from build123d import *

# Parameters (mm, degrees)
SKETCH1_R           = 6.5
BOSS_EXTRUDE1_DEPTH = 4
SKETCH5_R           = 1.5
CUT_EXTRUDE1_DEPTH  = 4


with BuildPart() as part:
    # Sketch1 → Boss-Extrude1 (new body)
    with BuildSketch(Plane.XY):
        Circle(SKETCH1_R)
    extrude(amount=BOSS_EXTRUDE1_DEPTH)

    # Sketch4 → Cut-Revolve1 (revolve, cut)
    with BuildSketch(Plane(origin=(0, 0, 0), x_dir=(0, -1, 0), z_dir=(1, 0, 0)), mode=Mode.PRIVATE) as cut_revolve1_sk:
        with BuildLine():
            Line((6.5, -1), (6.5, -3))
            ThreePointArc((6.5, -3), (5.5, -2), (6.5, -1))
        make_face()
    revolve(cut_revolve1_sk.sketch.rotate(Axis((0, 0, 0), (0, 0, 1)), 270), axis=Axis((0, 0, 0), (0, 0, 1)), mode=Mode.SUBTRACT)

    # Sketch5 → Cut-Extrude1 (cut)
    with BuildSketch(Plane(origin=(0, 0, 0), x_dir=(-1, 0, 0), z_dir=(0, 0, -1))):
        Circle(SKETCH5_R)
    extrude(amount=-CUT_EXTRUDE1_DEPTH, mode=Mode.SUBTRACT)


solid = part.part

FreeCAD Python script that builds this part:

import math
import FreeCAD as App
import Part
import Sketcher

V = App.Vector
Q = App.Units.Quantity

doc = App.newDocument("Part")
body = doc.addObject("PartDesign::Body", "Body")

# Sketch on XY plane
sketch1 = body.newObject("Sketcher::SketchObject", "Sketch")
sketch1.AttachmentSupport = (doc.getObject("XY_Plane"), [""])
sketch1.MapMode = "FlatFace"
sketch1.addGeometry(Part.Circle(V(0, 0, 0), V(0, 0, 1), 6.5), False)
sketch1.addConstraint(Sketcher.Constraint("Coincident", 0, 3, -1, 1))
sketch1.addConstraint(Sketcher.Constraint("Diameter", 0, Q("13 mm")))
pad1 = body.newObject("PartDesign::Pad", "Pad")
pad1.Profile = sketch1
pad1.Length = 4

# Sketch on YZ plane
sketch2 = body.newObject("Sketcher::SketchObject", "Sketch001")
sketch2.AttachmentSupport = (doc.getObject("YZ_Plane"), [""])
sketch2.MapMode = "FlatFace"
sketch2.addGeometry(Part.LineSegment(V(-6.5, 3, 0), V(-6.5, 1, 0)), False)
sketch2.addGeometry(Part.ArcOfCircle(Part.Circle(V(-6.5, 2, 0), V(0, 0, 1), 1), math.radians(-90), math.radians(90)), False)
sketch2.addConstraint(Sketcher.Constraint("Coincident", 0, 1, 1, 2))
sketch2.addConstraint(Sketcher.Constraint("Coincident", 1, 1, 0, 2))
sketch2.addConstraint(Sketcher.Constraint("Vertical", 0))
sketch2.addConstraint(Sketcher.Constraint("Vertical", 1, 3, 0, 1))
sketch2.addConstraint(Sketcher.Constraint("Radius", 1, Q("1 mm")))
sketch2.addConstraint(Sketcher.Constraint("DistanceY", -1, 1, 1, 3, Q("2 mm")))
sketch2.addConstraint(Sketcher.Constraint("DistanceX", 1, 3, -1, 1, Q("6.5 mm")))
groove = body.newObject("PartDesign::Groove", "Groove")
groove.Profile = sketch2
groove.ReferenceAxis = (sketch2, ["V_Axis"])
groove.Angle = 360

# Sketch on XY plane
sketch3 = body.newObject("Sketcher::SketchObject", "Sketch002")
sketch3.AttachmentSupport = (doc.getObject("XY_Plane"), [""])
sketch3.MapMode = "FlatFace"
sketch3.addGeometry(Part.Circle(V(0, 0, 0), V(0, 0, 1), 1.5), False)
sketch3.addConstraint(Sketcher.Constraint("Coincident", 0, 3, -1, 1))
sketch3.addConstraint(Sketcher.Constraint("Diameter", 0, Q("3 mm")))
pocket1 = body.newObject("PartDesign::Pocket", "Pocket")
pocket1.Profile = sketch3
pocket1.Length = 4
pocket1.Reversed = True

doc.recompute()
